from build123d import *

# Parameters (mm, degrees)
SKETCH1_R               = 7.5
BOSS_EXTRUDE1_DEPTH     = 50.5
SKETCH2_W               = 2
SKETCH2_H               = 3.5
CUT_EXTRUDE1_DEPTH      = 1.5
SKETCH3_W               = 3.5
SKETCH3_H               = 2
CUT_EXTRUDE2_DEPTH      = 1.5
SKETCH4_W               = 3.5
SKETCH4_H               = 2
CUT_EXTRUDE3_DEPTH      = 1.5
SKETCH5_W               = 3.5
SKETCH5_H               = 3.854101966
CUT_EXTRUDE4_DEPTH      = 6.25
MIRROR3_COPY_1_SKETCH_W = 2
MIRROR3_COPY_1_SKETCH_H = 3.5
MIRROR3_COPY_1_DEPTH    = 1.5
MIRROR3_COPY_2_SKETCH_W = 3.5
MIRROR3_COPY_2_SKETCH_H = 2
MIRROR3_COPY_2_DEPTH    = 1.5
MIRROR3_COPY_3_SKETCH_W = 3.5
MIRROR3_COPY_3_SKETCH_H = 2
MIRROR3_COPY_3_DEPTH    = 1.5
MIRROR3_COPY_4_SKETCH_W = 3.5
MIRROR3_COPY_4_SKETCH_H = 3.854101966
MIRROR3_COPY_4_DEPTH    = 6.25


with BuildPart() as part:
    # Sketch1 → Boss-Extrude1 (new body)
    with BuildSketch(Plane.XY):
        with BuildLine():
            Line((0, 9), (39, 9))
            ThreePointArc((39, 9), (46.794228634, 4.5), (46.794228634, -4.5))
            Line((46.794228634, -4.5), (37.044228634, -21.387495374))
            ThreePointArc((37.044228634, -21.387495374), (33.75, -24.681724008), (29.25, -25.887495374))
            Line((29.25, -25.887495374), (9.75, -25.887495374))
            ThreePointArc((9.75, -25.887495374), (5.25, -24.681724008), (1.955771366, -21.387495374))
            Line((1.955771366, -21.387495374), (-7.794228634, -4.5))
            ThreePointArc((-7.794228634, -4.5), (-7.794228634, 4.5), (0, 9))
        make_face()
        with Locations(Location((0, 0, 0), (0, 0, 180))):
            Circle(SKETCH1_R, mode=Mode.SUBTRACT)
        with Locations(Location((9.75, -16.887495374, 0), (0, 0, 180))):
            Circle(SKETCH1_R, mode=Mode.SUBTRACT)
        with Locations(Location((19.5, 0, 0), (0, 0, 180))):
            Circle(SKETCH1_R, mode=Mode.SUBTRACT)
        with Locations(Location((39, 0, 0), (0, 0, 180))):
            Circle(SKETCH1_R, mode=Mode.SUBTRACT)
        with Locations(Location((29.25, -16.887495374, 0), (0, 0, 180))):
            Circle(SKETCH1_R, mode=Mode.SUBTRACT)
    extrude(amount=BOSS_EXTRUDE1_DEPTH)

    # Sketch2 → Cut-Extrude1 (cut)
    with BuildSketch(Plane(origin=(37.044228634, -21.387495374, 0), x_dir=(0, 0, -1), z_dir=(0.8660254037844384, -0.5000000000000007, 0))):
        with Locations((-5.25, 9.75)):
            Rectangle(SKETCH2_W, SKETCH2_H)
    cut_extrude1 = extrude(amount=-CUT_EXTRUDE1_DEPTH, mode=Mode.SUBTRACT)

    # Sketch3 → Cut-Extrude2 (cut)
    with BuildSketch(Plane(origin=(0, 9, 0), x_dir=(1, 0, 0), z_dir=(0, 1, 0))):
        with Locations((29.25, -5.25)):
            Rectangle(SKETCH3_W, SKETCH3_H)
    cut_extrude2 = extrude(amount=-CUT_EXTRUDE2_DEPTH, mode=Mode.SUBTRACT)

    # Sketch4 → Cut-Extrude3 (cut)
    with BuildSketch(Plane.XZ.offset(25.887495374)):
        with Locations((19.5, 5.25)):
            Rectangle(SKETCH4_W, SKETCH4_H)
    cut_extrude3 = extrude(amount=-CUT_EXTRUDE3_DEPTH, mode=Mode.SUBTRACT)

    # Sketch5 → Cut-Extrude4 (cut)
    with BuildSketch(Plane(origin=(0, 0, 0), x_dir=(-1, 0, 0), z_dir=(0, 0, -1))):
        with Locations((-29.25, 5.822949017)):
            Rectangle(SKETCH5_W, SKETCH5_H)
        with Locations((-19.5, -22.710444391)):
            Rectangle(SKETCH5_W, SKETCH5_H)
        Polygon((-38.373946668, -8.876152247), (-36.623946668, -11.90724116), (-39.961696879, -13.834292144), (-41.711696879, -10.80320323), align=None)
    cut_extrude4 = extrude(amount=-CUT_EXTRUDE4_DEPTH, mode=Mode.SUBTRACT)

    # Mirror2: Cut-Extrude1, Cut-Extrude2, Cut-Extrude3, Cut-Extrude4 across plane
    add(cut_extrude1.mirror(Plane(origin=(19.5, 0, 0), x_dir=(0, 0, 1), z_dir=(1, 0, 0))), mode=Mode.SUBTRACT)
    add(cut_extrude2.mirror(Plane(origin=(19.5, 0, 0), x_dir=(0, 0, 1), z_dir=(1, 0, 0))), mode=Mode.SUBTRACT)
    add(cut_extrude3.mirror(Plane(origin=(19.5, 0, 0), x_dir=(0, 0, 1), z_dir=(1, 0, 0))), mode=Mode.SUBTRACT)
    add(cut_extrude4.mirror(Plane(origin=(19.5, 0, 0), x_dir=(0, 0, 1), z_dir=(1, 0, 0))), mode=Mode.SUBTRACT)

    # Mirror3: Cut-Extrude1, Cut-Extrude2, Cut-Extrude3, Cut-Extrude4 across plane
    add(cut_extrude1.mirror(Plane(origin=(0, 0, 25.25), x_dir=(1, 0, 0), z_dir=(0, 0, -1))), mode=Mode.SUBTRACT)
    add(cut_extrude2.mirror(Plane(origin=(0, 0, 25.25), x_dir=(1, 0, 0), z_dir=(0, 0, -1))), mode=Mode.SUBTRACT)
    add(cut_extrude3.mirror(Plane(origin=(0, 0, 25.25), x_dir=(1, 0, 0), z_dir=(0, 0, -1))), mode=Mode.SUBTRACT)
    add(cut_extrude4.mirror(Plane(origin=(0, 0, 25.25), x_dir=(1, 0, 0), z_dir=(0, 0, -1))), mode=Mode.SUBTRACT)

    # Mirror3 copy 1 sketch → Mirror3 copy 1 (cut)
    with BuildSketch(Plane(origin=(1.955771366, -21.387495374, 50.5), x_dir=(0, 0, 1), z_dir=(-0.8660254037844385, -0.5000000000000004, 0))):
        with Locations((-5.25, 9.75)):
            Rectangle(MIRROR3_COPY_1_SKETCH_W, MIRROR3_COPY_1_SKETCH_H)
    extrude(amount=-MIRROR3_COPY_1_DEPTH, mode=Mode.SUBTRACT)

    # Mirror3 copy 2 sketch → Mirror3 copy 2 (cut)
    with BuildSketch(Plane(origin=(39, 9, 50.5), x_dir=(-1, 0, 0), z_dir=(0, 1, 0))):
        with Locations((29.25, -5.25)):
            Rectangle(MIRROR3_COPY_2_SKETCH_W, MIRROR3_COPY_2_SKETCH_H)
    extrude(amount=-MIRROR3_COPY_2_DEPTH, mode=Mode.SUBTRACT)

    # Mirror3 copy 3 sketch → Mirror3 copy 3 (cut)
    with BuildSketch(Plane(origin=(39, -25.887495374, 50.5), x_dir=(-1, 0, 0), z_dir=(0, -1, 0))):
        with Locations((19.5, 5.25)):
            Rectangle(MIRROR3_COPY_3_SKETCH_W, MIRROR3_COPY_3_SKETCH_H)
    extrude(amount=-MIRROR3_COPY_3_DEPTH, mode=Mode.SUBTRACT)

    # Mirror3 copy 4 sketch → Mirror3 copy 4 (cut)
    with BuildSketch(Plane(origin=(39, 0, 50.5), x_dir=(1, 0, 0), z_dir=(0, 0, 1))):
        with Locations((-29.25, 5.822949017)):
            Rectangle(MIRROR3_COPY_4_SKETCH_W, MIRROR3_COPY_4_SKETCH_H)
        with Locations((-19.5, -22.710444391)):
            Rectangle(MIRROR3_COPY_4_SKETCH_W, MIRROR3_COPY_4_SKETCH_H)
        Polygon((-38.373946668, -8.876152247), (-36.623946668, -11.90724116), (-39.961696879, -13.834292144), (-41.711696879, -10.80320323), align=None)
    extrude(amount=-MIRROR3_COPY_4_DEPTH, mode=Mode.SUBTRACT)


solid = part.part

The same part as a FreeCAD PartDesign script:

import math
import FreeCAD as App
import Part
import Sketcher
Q = App.Units.Quantity


def add_polygon(sketch, points):
    """Adds a closed chain of lines whose ends are joined by coincident constraints."""
    first, n = sketch.GeometryCount, len(points)
    for a, b in zip(points, points[1:] + points[:1]):
        sketch.addGeometry(Part.LineSegment(App.Vector(*a, 0), App.Vector(*b, 0)), False)
    for i in range(n):
        sketch.addConstraint(Sketcher.Constraint("Coincident", first + i, 2, first + (i + 1) % n, 1))

doc = App.newDocument("Part")
body = doc.addObject("PartDesign::Body", "Body")

sketch1 = body.newObject("Sketcher::SketchObject", "Sketch")
sketch1.AttachmentSupport = (doc.getObject("XY_Plane"), [""])
sketch1.MapMode = "FlatFace"
sketch1.addGeometry([
    Part.LineSegment(App.Vector(39, 9, 0), App.Vector(0, 9, 0)),
    Part.ArcOfCircle(Part.Circle(App.Vector(0, 0, 0), App.Vector(0, 0, 1), 9), math.radians(90), math.radians(210)),
    Part.LineSegment(App.Vector(-8, -4, 0), App.Vector(2, -21, 0)),
    Part.ArcOfCircle(Part.Circle(App.Vector(10, -17, 0), App.Vector(0, 0, 1), 9), math.radians(-150), math.radians(-90)),
    Part.LineSegment(App.Vector(10, -26, 0), App.Vector(29, -26, 0)),
    Part.ArcOfCircle(Part.Circle(App.Vector(29, -17, 0), App.Vector(0, 0, 1), 9), math.radians(-90), math.radians(-30)),
    Part.LineSegment(App.Vector(37, -21, 0), App.Vector(47, -4, 0)),
    Part.ArcOfCircle(Part.Circle(App.Vector(39, 0, 0), App.Vector(0, 0, 1), 9), math.radians(-30), math.radians(90)),
    Part.Circle(App.Vector(29, -17, 0), App.Vector(0, 0, 1), 8),
    Part.Circle(App.Vector(10, -17, 0), App.Vector(0, 0, 1), 8),
    Part.Circle(App.Vector(39, 0, 0), App.Vector(0, 0, 1), 8),
    Part.Circle(App.Vector(20, 0, 0), App.Vector(0, 0, 1), 8),
    Part.Circle(App.Vector(0, 0, 0), App.Vector(0, 0, 1), 8),
], False)
sketch1.addConstraint([
    Sketcher.Constraint("Tangent", 0, 2, 1, 1),
    Sketcher.Constraint("Tangent", 1, 2, 2, 1),
    Sketcher.Constraint("Tangent", 2, 2, 3, 1),
    Sketcher.Constraint("Tangent", 3, 2, 4, 1),
    Sketcher.Constraint("Tangent", 4, 2, 5, 1),
    Sketcher.Constraint("Tangent", 5, 2, 6, 1),
    Sketcher.Constraint("Tangent", 6, 2, 7, 1),
    Sketcher.Constraint("Tangent", 7, 2, 0, 1),
    Sketcher.Constraint("Horizontal", 0),
    Sketcher.Constraint("Horizontal", 4),
    Sketcher.Constraint("Coincident", 1, 3, -1, 1),
    Sketcher.Constraint("Coincident", 12, 3, -1, 1),
    Sketcher.Constraint("Coincident", 8, 3, 5, 3),
    Sketcher.Constraint("Coincident", 9, 3, 3, 3),
    Sketcher.Constraint("Coincident", 10, 3, 7, 3),
    Sketcher.Constraint("Equal", 1, 3),
    Sketcher.Constraint("Equal", 3, 5),
    Sketcher.Constraint("Equal", 5, 7),
    Sketcher.Constraint("Equal", 8, 9),
    Sketcher.Constraint("Equal", 9, 10),
    Sketcher.Constraint("Equal", 10, 11),
    Sketcher.Constraint("Equal", 11, 12),
    Sketcher.Constraint("PointOnObject", 11, 3, -1),
    Sketcher.Constraint("Horizontal", 2, 2, 5, 2),
    Sketcher.Constraint("Diameter", 8, Q("15 mm")),
    Sketcher.Constraint("Radius", 1, Q("9 mm")),
    Sketcher.Constraint("DistanceX", 0, 2, 0, 1, Q("39 mm")),
    Sketcher.Constraint("Angle", 2, Q("-60 deg")),
    Sketcher.Constraint("DistanceX", 4, 1, 4, 2, Q("19.5 mm")),
    Sketcher.Constraint("DistanceX", -1, 1, 11, 3, Q("19.5 mm")),
])
pad1 = body.newObject("PartDesign::Pad", "Pad")
pad1.Profile = sketch1
pad1.Length = 50.5

sketch2 = body.newObject("Sketcher::SketchObject", "Sketch001")
sketch2.Placement = App.Placement(App.Vector(37.044229, -21.387495, 0), App.Rotation(App.Vector(0, 0, -1), App.Vector(0.5, 0.866025404, 0), App.Vector(0.866025404, -0.5, 0), "ZXY"))
add_polygon(sketch2, [(-6.2, 11.5), (-6.2, 8), (-4.2, 8), (-4.2, 11.5)])
sketch2.addConstraint([
    Sketcher.Constraint("Vertical", 0),
    Sketcher.Constraint("Horizontal", 1),
    Sketcher.Constraint("Vertical", 2),
    Sketcher.Constraint("Horizontal", 3),
    Sketcher.Constraint("DistanceX", 1, 1, 1, 2, Q("2 mm")),
    Sketcher.Constraint("DistanceY", 0, 2, 0, 1, Q("3.5 mm")),
    Sketcher.Constraint("DistanceY", -1, 1, 0, 2, Q("8 mm")),
    Sketcher.Constraint("DistanceX", 0, 2, -1, 1, Q("6.25 mm")),
])
pocket1 = body.newObject("PartDesign::Pocket", "Pocket")
pocket1.Profile = sketch2
pocket1.Length = 1.5

sketch3 = body.newObject("Sketcher::SketchObject", "Sketch002")
sketch3.AttachmentSupport = (doc.getObject("XZ_Plane"), [""])
sketch3.MapMode = "FlatFace"
sketch3.AttachmentOffset = App.Placement(App.Vector(0, 0, -9), App.Rotation())
add_polygon(sketch3, [(27.5, 4.2), (27.5, 6.2), (31, 6.2), (31, 4.2)])
sketch3.addConstraint([
    Sketcher.Constraint("Vertical", 0),
    Sketcher.Constraint("Horizontal", 1),
    Sketcher.Constraint("Vertical", 2),
    Sketcher.Constraint("Horizontal", 3),
    Sketcher.Constraint("DistanceY", 0, 1, 0, 2, Q("2 mm")),
    Sketcher.Constraint("DistanceX", 1, 1, 1, 2, Q("3.5 mm")),
    Sketcher.Constraint("DistanceX", -1, 1, 1, 2, Q("31 mm")),
    Sketcher.Constraint("DistanceY", -1, 1, 0, 2, Q("6.25 mm")),
])
pocket2 = body.newObject("PartDesign::Pocket", "Pocket001")
pocket2.Profile = sketch3
pocket2.Length = 1.5
pocket2.Reversed = True

sketch4 = body.newObject("Sketcher::SketchObject", "Sketch003")
sketch4.AttachmentSupport = (doc.getObject("XZ_Plane"), [""])
sketch4.MapMode = "FlatFace"
sketch4.AttachmentOffset = App.Placement(App.Vector(0, 0, 25.887495), App.Rotation())
add_polygon(sketch4, [(17.8, 6.2), (17.8, 4.2), (21.2, 4.2), (21.2, 6.2)])
sketch4.addConstraint([
    Sketcher.Constraint("Vertical", 0),
    Sketcher.Constraint("Horizontal", 1),
    Sketcher.Constraint("Vertical", 2),
    Sketcher.Constraint("Horizontal", 3),
    Sketcher.Constraint("DistanceY", 0, 2, 0, 1, Q("2 mm")),
    Sketcher.Constraint("DistanceX", 1, 1, 1, 2, Q("3.5 mm")),
    Sketcher.Constraint("DistanceX", -1, 1, 0, 2, Q("17.75 mm")),
    Sketcher.Constraint("DistanceY", -1, 1, 0, 2, Q("4.25 mm")),
])
pocket3 = body.newObject("PartDesign::Pocket", "Pocket002")
pocket3.Profile = sketch4
pocket3.Length = 1.5

sketch5 = body.newObject("Sketcher::SketchObject", "Sketch004")
sketch5.AttachmentSupport = (doc.getObject("XY_Plane"), [""])
sketch5.MapMode = "FlatFace"
add_polygon(sketch5, [(31, 7.8), (31, 3.9), (27.5, 3.9), (27.5, 7.8)])
add_polygon(sketch5, [(21.2, -20.8), (21.2, -24.6), (17.8, -24.6), (17.8, -20.8)])
add_polygon(sketch5, [(36.6, -11.9), (38.4, -8.9), (41.7, -10.8), (40, -13.8)])
sketch5.addConstraint([
    Sketcher.Constraint("Vertical", 0),
    Sketcher.Constraint("Horizontal", 1),
    Sketcher.Constraint("Vertical", 2),
    Sketcher.Constraint("Horizontal", 3),
    Sketcher.Constraint("Vertical", 4),
    Sketcher.Constraint("Horizontal", 5),
    Sketcher.Constraint("Vertical", 6),
    Sketcher.Constraint("Horizontal", 7),
    Sketcher.Constraint("Perpendicular", 8, 9),
    Sketcher.Constraint("Perpendicular", 9, 10),
    Sketcher.Constraint("Perpendicular", 10, 11),
    Sketcher.Constraint("Equal", 3, 5),
    Sketcher.Constraint("Equal", 2, 4),
    Sketcher.Constraint("Angle", 8, Q("60 deg")),
    Sketcher.Constraint("DistanceX", 1, 2, 1, 1, Q("3.5 mm")),
    Sketcher.Constraint("DistanceX", -1, 1, 0, 2, Q("31 mm")),
    Sketcher.Constraint("Distance", 8, Q("3.5 mm")),
    Sketcher.Constraint("DistanceY", -1, 1, 2, 2, Q("7.75 mm")),
    Sketcher.Constraint("DistanceX", -1, 1, 4, 2, Q("21.25 mm")),
    Sketcher.Constraint("DistanceY", 0, 2, 0, 1, Q("3.854102 mm")),
    Sketcher.Constraint("Distance", 9, Q("3.854102 mm")),
    Sketcher.Constraint("DistanceY", 9, 2, 0, 2, Q("14.699101 mm")),
    Sketcher.Constraint("DistanceY", 7, 2, 10, 2, Q("6.949101 mm")),
    Sketcher.Constraint("DistanceX", -1, 1, 8, 2, Q("38.373947 mm")),
])
pocket4 = body.newObject("PartDesign::Pocket", "Pocket003")
pocket4.Profile = sketch5
pocket4.Length = 6.25
pocket4.Reversed = True
doc.recompute()

datumplane = body.newObject("PartDesign::Plane", "DatumPlane")
datumplane.AttachmentSupport = (doc.getObject("YZ_Plane"), [""])
datumplane.MapMode = "FlatFace"
datumplane.AttachmentOffset = App.Placement(App.Vector(0, 0, 19.5), App.Rotation())
mirrored = body.newObject("PartDesign::Mirrored", "Mirrored")
mirrored.Originals = [pocket1, pocket2, pocket3, pocket4]
mirrored.MirrorPlane = (datumplane, [""])
body.Tip = mirrored
doc.recompute()

datumplane2 = body.newObject("PartDesign::Plane", "DatumPlane001")
datumplane2.AttachmentSupport = (doc.getObject("XY_Plane"), [""])
datumplane2.MapMode = "FlatFace"
datumplane2.AttachmentOffset = App.Placement(App.Vector(0, 0, 25.25), App.Rotation())
mirrored2 = body.newObject("PartDesign::Mirrored", "Mirrored001")
mirrored2.Originals = [pocket1, pocket2, pocket3, pocket4]
mirrored2.MirrorPlane = (datumplane2, [""])
body.Tip = mirrored2

sketch6 = body.newObject("Sketcher::SketchObject", "Sketch005")
sketch6.Placement = App.Placement(App.Vector(1.955771, -21.387495, 50.5), App.Rotation(App.Vector(0, 0, 1), App.Vector(-0.5, 0.866025404, 0), App.Vector(-0.866025404, -0.5, 0), "ZXY"))
add_polygon(sketch6, [(-6.2, 11.5), (-6.2, 8), (-4.2, 8), (-4.2, 11.5)])
sketch6.addConstraint([
    Sketcher.Constraint("Vertical", 0),
    Sketcher.Constraint("Horizontal", 1),
    Sketcher.Constraint("Vertical", 2),
    Sketcher.Constraint("Horizontal", 3),
    Sketcher.Constraint("DistanceX", 1, 1, 1, 2, Q("2 mm")),
    Sketcher.Constraint("DistanceY", 0, 2, 0, 1, Q("3.5 mm")),
    Sketcher.Constraint("DistanceY", -1, 1, 0, 2, Q("8 mm")),
    Sketcher.Constraint("DistanceX", 0, 2, -1, 1, Q("6.25 mm")),
])
pocket5 = body.newObject("PartDesign::Pocket", "Pocket004")
pocket5.Profile = sketch6
pocket5.Length = 1.5

sketch7 = body.newObject("Sketcher::SketchObject", "Sketch006")
sketch7.AttachmentSupport = (doc.getObject("XZ_Plane"), [""])
sketch7.MapMode = "FlatFace"
sketch7.AttachmentOffset = App.Placement(App.Vector(0, 0, -9), App.Rotation())
add_polygon(sketch7, [(11.5, 46.2), (11.5, 44.2), (8, 44.2), (8, 46.2)])
sketch7.addConstraint([
    Sketcher.Constraint("Vertical", 0),
    Sketcher.Constraint("Horizontal", 1),
    Sketcher.Constraint("Vertical", 2),
    Sketcher.Constraint("Horizontal", 3),
    Sketcher.Constraint("DistanceY", 0, 2, 0, 1, Q("2 mm")),
    Sketcher.Constraint("DistanceX", 1, 2, 1, 1, Q("3.5 mm")),
    Sketcher.Constraint("DistanceX", -1, 1, 1, 2, Q("8 mm")),
    Sketcher.Constraint("DistanceY", -1, 1, 0, 2, Q("44.25 mm")),
])
pocket6 = body.newObject("PartDesign::Pocket", "Pocket005")
pocket6.Profile = sketch7
pocket6.Length = 1.5
pocket6.Reversed = True

sketch8 = body.newObject("Sketcher::SketchObject", "Sketch007")
sketch8.AttachmentSupport = (doc.getObject("XZ_Plane"), [""])
sketch8.MapMode = "FlatFace"
sketch8.AttachmentOffset = App.Placement(App.Vector(0, 0, 25.887495), App.Rotation())
add_polygon(sketch8, [(21.2, 44.2), (21.2, 46.2), (17.8, 46.2), (17.8, 44.2)])
sketch8.addConstraint([
    Sketcher.Constraint("Vertical", 0),
    Sketcher.Constraint("Horizontal", 1),
    Sketcher.Constraint("Vertical", 2),
    Sketcher.Constraint("Horizontal", 3),
    Sketcher.Constraint("DistanceY", 0, 1, 0, 2, Q("2 mm")),
    Sketcher.Constraint("DistanceX", 1, 2, 1, 1, Q("3.5 mm")),
    Sketcher.Constraint("DistanceX", -1, 1, 0, 2, Q("21.25 mm")),
    Sketcher.Constraint("DistanceY", -1, 1, 0, 2, Q("46.25 mm")),
])
pocket7 = body.newObject("PartDesign::Pocket", "Pocket006")
pocket7.Profile = sketch8
pocket7.Length = 1.5

sketch9 = body.newObject("Sketcher::SketchObject", "Sketch008")
sketch9.AttachmentSupport = (doc.getObject("XY_Plane"), [""])
sketch9.MapMode = "FlatFace"
sketch9.AttachmentOffset = App.Placement(App.Vector(0, 0, 50.5), App.Rotation())
add_polygon(sketch9, [(8, 7.8), (8, 3.9), (11.5, 3.9), (11.5, 7.8)])
add_polygon(sketch9, [(17.8, -20.8), (17.8, -24.6), (21.2, -24.6), (21.2, -20.8)])
add_polygon(sketch9, [(2.4, -11.9), (0.6, -8.9), (-2.7, -10.8), (-1, -13.8)])
sketch9.addConstraint([
    Sketcher.Constraint("Vertical", 0),
    Sketcher.Constraint("Horizontal", 1),
    Sketcher.Constraint("Vertical", 2),
    Sketcher.Constraint("Horizontal", 3),
    Sketcher.Constraint("Vertical", 4),
    Sketcher.Constraint("Horizontal", 5),
    Sketcher.Constraint("Vertical", 6),
    Sketcher.Constraint("Horizontal", 7),
    Sketcher.Constraint("Perpendicular", 8, 9),
    Sketcher.Constraint("Perpendicular", 9, 10),
    Sketcher.Constraint("Perpendicular", 10, 11),
    Sketcher.Constraint("Equal", 3, 5),
    Sketcher.Constraint("Equal", 2, 4),
    Sketcher.Constraint("Angle", 8, Q("120 deg")),
    Sketcher.Constraint("DistanceX", 1, 1, 1, 2, Q("3.5 mm")),
    Sketcher.Constraint("DistanceX", -1, 1, 0, 2, Q("8 mm")),
    Sketcher.Constraint("Distance", 8, Q("3.5 mm")),
    Sketcher.Constraint("DistanceY", -1, 1, 2, 2, Q("7.75 mm")),
    Sketcher.Constraint("DistanceX", -1, 1, 4, 2, Q("17.75 mm")),
    Sketcher.Constraint("DistanceY", 0, 2, 0, 1, Q("3.854102 mm")),
    Sketcher.Constraint("Distance", 9, Q("3.854102 mm")),
    Sketcher.Constraint("DistanceY", 9, 2, 0, 2, Q("14.699101 mm")),
    Sketcher.Constraint("DistanceY", 7, 2, 10, 2, Q("6.949101 mm")),
    Sketcher.Constraint("DistanceX", -1, 1, 8, 2, Q("0.626053 mm")),
])
pocket8 = body.newObject("PartDesign::Pocket", "Pocket007")
pocket8.Profile = sketch9
pocket8.Length = 6.25

doc.recompute()
